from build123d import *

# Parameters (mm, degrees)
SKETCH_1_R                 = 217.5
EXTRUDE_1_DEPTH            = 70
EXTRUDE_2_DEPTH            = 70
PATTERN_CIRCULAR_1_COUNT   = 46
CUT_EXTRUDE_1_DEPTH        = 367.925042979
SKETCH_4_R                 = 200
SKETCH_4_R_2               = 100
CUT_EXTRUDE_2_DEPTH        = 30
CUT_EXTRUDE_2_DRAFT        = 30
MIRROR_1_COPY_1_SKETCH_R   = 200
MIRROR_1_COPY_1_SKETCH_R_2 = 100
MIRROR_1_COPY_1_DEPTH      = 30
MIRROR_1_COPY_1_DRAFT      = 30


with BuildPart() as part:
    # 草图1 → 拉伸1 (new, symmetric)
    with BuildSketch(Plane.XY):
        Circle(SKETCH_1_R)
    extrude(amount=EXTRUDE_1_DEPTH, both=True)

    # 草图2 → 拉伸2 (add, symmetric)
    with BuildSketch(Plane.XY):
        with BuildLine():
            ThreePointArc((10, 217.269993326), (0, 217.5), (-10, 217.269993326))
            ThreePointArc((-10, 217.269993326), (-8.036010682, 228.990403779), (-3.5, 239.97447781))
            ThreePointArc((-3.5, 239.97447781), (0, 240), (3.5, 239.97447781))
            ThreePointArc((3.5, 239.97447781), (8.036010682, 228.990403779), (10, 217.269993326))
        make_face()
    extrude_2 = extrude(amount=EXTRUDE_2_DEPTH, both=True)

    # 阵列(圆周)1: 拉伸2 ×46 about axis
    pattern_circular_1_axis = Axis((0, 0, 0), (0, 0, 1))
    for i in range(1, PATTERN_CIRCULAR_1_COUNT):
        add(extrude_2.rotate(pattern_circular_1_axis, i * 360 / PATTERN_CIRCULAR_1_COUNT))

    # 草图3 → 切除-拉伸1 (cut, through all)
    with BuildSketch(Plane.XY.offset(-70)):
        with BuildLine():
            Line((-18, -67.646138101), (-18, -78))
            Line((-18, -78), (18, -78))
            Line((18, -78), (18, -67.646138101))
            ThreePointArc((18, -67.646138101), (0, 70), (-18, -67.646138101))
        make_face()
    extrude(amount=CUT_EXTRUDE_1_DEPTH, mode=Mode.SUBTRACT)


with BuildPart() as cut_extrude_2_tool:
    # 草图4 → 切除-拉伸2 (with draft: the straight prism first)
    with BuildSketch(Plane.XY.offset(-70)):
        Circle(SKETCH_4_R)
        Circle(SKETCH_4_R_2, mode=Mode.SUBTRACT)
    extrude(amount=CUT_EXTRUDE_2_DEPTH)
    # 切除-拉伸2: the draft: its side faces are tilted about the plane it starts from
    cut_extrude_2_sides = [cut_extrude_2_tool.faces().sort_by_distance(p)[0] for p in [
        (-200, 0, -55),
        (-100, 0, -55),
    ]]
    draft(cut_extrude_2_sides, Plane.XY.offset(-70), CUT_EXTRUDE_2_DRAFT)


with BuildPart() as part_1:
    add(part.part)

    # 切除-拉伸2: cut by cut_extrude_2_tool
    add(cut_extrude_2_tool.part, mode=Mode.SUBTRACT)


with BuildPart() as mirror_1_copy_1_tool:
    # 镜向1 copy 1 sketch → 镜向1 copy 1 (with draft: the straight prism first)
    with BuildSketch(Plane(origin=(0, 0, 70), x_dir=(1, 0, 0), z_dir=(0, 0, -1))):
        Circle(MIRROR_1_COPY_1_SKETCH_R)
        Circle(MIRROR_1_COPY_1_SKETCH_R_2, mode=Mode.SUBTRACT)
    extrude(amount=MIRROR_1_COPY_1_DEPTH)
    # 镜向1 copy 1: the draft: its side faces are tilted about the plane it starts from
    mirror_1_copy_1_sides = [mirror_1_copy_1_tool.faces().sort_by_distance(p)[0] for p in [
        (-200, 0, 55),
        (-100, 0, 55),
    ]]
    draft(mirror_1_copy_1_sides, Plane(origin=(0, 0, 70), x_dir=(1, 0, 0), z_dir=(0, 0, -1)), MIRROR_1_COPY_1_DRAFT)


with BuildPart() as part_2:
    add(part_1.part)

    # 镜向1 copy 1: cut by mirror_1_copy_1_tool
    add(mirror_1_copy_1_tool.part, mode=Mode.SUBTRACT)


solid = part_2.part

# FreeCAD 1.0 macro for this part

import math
import FreeCAD as App
import Part
import Sketcher

V = App.Vector


def faces_at(feature, points):
    """Names of the faces that lie closest to the given points."""
    faces = feature.Shape.Faces
    near = lambda p: min(range(len(faces)), key=lambda i: faces[i].distToShape(Part.Vertex(*p))[0])
    return sorted({f"Face{near(p) + 1}" for p in points})

doc = App.newDocument("Part")
body = doc.addObject("PartDesign::Body", "Body")

sketch1 = body.newObject("Sketcher::SketchObject", "Sketch")
sketch1.AttachmentSupport = (doc.getObject("XY_Plane"), [""])
sketch1.MapMode = "FlatFace"
sketch1.addGeometry(Part.Circle(V(0, 0, 0), V(0, 0, 1), 218), False)
sketch1.addConstraint([
    Sketcher.Constraint("Coincident", 0, 3, -1, 1),
    Sketcher.Constraint("Diameter", 0, 435.0),
])
pad1 = body.newObject("PartDesign::Pad", "Pad")
pad1.Profile = sketch1
pad1.Length = 140
pad1.Midplane = True

sketch2 = body.newObject("Sketcher::SketchObject", "Sketch001")
sketch2.AttachmentSupport = (doc.getObject("XY_Plane"), [""])
sketch2.MapMode = "FlatFace"
sketch2.addGeometry([
    Part.ArcOfCircle(Part.Circle(V(0, 0, 0), V(0, 0, 1), 217), math.radians(87.36), math.radians(92.64)),
    Part.ArcOfCircle(Part.Circle(V(-43, 214, 0), V(0, 0, 1), 53), math.radians(3), math.radians(29)),
    Part.ArcOfCircle(Part.Circle(V(0, 0, 0), V(0, 0, 1), 240), math.radians(89.16), math.radians(90.84)),
    Part.ArcOfCircle(Part.Circle(V(43, 214, 0), V(0, 0, 1), 53), math.radians(151), math.radians(177)),
], False)
sketch2.addConstraint([
    Sketcher.Constraint("Coincident", 0, 1, 1, 1),
    Sketcher.Constraint("Coincident", 1, 2, 2, 1),
    Sketcher.Constraint("Coincident", 2, 2, 3, 1),
    Sketcher.Constraint("Coincident", 3, 2, 0, 2),
    Sketcher.Constraint("Coincident", 0, 3, -1, 1),
    Sketcher.Constraint("Coincident", 2, 3, -1, 1),
    Sketcher.Constraint("Equal", 1, 3),
    Sketcher.Constraint("Symmetric", 1, 3, 3, 3, -2),
    Sketcher.Constraint("Radius", 0, 217.5),
    Sketcher.Constraint("DistanceX", -1, 1, 0, 1, 10.0),
    Sketcher.Constraint("DistanceX", 2, 2, 1, 2, 7.0),
    Sketcher.Constraint("Radius", 1, 52.787634),
    Sketcher.Constraint("Radius", 2, 240.000004),
])
pad2 = body.newObject("PartDesign::Pad", "Pad001")
pad2.Profile = sketch2
pad2.Length = 140
pad2.Midplane = True
doc.recompute()

polarpattern = body.newObject("PartDesign::PolarPattern", "PolarPattern")
polarpattern.Originals = [pad2]
polarpattern.Axis = (doc.getObject("Z_Axis"), [""])
polarpattern.Angle = 360
polarpattern.Occurrences = 46
body.Tip = polarpattern

sketch3 = body.newObject("Sketcher::SketchObject", "Sketch002")
sketch3.AttachmentSupport = (doc.getObject("XY_Plane"), [""])
sketch3.MapMode = "FlatFace"
sketch3.AttachmentOffset = App.Placement(V(0, 0, -70), App.Rotation())
sketch3.addGeometry([
    Part.LineSegment(V(-18, -68, 0), V(-18, -78, 0)),
    Part.LineSegment(V(-18, -78, 0), V(18, -78, 0)),
    Part.LineSegment(V(18, -78, 0), V(18, -68, 0)),
    Part.ArcOfCircle(Part.Circle(V(0, 0, 0), V(0, 0, 1), 70), math.radians(-75), math.radians(255)),
], False)
sketch3.addConstraint([
    Sketcher.Constraint("Coincident", 0, 2, 1, 1),
    Sketcher.Constraint("Coincident", 1, 2, 2, 1),
    Sketcher.Constraint("Coincident", 2, 2, 3, 1),
    Sketcher.Constraint("Coincident", 3, 2, 0, 1),
    Sketcher.Constraint("Vertical", 0),
    Sketcher.Constraint("Horizontal", 1),
    Sketcher.Constraint("Vertical", 2),
    Sketcher.Constraint("Coincident", 3, 3, -1, 1),
    Sketcher.Constraint("Horizontal", 2, 2, 3, 2),
    Sketcher.Constraint("Radius", 3, 70.0),
    Sketcher.Constraint("DistanceX", 1, 1, 1, 2, 36.0),
    Sketcher.Constraint("DistanceY", 0, 2, -1, 1, 78.0),
])
pocket1 = body.newObject("PartDesign::Pocket", "Pocket")
pocket1.Profile = sketch3
pocket1.Type = "ThroughAll"
pocket1.Reversed = True
body2 = doc.addObject("PartDesign::Body", "Body001")

sketch4 = body2.newObject("Sketcher::SketchObject", "Sketch003")
sketch4.AttachmentSupport = (doc.getObject("XY_Plane001"), [""])
sketch4.MapMode = "FlatFace"
sketch4.AttachmentOffset = App.Placement(V(0, 0, -70), App.Rotation())
sketch4.addGeometry([
    Part.Circle(V(0, 0, 0), V(0, 0, 1), 200),
    Part.Circle(V(0, 0, 0), V(0, 0, 1), 100),
], False)
sketch4.addConstraint([
    Sketcher.Constraint("Coincident", 0, 3, -1, 1),
    Sketcher.Constraint("Coincident", 1, 3, -1, 1),
    Sketcher.Constraint("Diameter", 0, 400.0),
    Sketcher.Constraint("Diameter", 1, 200.0),
])
pad3 = body2.newObject("PartDesign::Pad", "Pad002")
pad3.Profile = sketch4
pad3.Length = 30
doc.recompute()

datumplane = body2.newObject("PartDesign::Plane", "DatumPlane")
datumplane.AttachmentSupport = (doc.getObject("XY_Plane001"), [""])
datumplane.MapMode = "FlatFace"
datumplane.AttachmentOffset = App.Placement(V(0, 0, -70), App.Rotation())
draft = body2.newObject("PartDesign::Draft", "Draft")
draft.Base = (pad3, faces_at(pad3, [(-200, 0, -55), (-100, 0, -55)]))
draft.NeutralPlane = (datumplane, [""])
draft.Angle = 30
draft.Reversed = False
doc.recompute()

boolean = body.newObject("PartDesign::Boolean", "Boolean")
boolean.Type = "Cut"
boolean.addObjects([body2])
body3 = doc.addObject("PartDesign::Body", "Body002")

sketch5 = body3.newObject("Sketcher::SketchObject", "Sketch004")
sketch5.AttachmentSupport = (doc.getObject("XY_Plane002"), [""])
sketch5.MapMode = "FlatFace"
sketch5.AttachmentOffset = App.Placement(V(0, 0, 70), App.Rotation())
sketch5.addGeometry([
    Part.Circle(V(0, 0, 0), V(0, 0, 1), 200),
    Part.Circle(V(0, 0, 0), V(0, 0, 1), 100),
], False)
sketch5.addConstraint([
    Sketcher.Constraint("Coincident", 0, 3, -1, 1),
    Sketcher.Constraint("Coincident", 1, 3, -1, 1),
    Sketcher.Constraint("Diameter", 0, 400.0),
    Sketcher.Constraint("Diameter", 1, 200.0),
])
pad4 = body3.newObject("PartDesign::Pad", "Pad003")
pad4.Profile = sketch5
pad4.Length = 30
pad4.Reversed = True
doc.recompute()

datumplane2 = body3.newObject("PartDesign::Plane", "DatumPlane001")
datumplane2.AttachmentSupport = (doc.getObject("XY_Plane002"), [""])
datumplane2.MapMode = "FlatFace"
datumplane2.AttachmentOffset = App.Placement(V(0, 0, 70), App.Rotation())
draft2 = body3.newObject("PartDesign::Draft", "Draft001")
draft2.Base = (pad4, faces_at(pad4, [(-200, 0, 55), (-100, 0, 55)]))
draft2.NeutralPlane = (datumplane2, [""])
draft2.Angle = 30
draft2.Reversed = True
doc.recompute()

boolean2 = body.newObject("PartDesign::Boolean", "Boolean001")
boolean2.Type = "Cut"
boolean2.addObjects([body3])

doc.recompute()
